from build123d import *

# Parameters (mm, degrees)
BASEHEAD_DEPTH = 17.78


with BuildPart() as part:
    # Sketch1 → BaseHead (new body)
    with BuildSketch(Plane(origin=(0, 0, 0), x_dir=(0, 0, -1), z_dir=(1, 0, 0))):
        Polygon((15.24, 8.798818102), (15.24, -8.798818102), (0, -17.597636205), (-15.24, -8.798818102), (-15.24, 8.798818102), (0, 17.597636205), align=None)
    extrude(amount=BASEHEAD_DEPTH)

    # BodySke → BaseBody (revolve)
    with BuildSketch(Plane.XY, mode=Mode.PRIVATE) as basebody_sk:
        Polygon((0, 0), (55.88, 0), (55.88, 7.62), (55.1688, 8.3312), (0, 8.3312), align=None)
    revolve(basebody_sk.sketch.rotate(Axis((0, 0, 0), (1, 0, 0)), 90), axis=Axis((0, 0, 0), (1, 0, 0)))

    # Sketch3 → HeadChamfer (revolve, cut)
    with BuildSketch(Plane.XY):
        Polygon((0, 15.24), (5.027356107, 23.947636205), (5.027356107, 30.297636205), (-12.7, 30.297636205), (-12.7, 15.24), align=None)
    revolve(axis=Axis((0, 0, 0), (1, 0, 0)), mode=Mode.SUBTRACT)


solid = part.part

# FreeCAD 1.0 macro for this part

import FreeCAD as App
import Part
import Sketcher

V = App.Vector
Q = App.Units.Quantity

doc = App.newDocument("Part")
params = doc.addObject("Spreadsheet::Sheet", "Params")
for row, (alias, value) in enumerate([
    ("pad1_length", "0.7 in"),
    ("sketch2_width", "2.2 in"),
    ("sketch2_height", "0.3 in"),
    ("sketch2_width2", "2.172 in"),
    ("revolution_angle", "360 deg"),
    ("sketch3_width", "0.5 in"),
    ("sketch3_height", "0.25 in"),
    ("groove_angle", "360 deg"),
], start=1):
    params.set(f"A{row}", alias)
    params.set(f"B{row}", "=" + value)
    params.setAlias(f"B{row}", alias)

body = doc.addObject("PartDesign::Body", "Body")

# Sketch on YZ plane
sketch1 = doc.addObject("Sketcher::SketchObject", "Sketch")
body.addObject(sketch1)
sketch1.AttachmentSupport = (doc.YZ_Plane, [""])
sketch1.MapMode = "FlatFace"
sketch1.addGeometry([
    Part.LineSegment(V(-8.798818, -15.24, 0), V(8.798818, -15.24, 0)),  # 0
    Part.LineSegment(V(8.798818, -15.24, 0), V(17.597636, 0, 0)),  # 1
    Part.LineSegment(V(17.597636, 0, 0), V(8.798818, 15.24, 0)),  # 2
    Part.LineSegment(V(8.798818, 15.24, 0), V(-8.798818, 15.24, 0)),  # 3
    Part.LineSegment(V(-8.798818, 15.24, 0), V(-17.597636, 0, 0)),  # 4
    Part.LineSegment(V(-17.597636, 0, 0), V(-8.798818, -15.24, 0)),  # 5
], False)
sketch1.addConstraint([
    Sketcher.Constraint("Coincident", 0, 2, 1, 1),
    Sketcher.Constraint("Coincident", 1, 2, 2, 1),
    Sketcher.Constraint("Coincident", 2, 2, 3, 1),
    Sketcher.Constraint("Coincident", 3, 2, 4, 1),
    Sketcher.Constraint("Coincident", 4, 2, 5, 1),
    Sketcher.Constraint("Coincident", 5, 2, 0, 1),
    Sketcher.Constraint("Horizontal", 0),
    Sketcher.Constraint("Horizontal", 3),
    Sketcher.Constraint("Symmetric", 0, 2, 3, 2, -1, 1),
    Sketcher.Constraint("Symmetric", 1, 2, 4, 2, -1, 1),
    Sketcher.Constraint("PointOnObject", 1, 2, -1),
    Sketcher.Constraint("Parallel", 2, 5),
    Sketcher.Constraint("Vertical", 0, 2, 2, 2),
    Sketcher.Constraint("Angle", 1, Q("60 deg")),
    Sketcher.Constraint("DistanceY", 0, 2, -1, 1, Q("0.6 in")),
    Sketcher.Constraint("DistanceX", 0, 1, 0, 2, 17.597636),
])
pad1 = doc.addObject("PartDesign::Pad", "Pad")
body.addObject(pad1)
pad1.Profile = sketch1
pad1.setExpression("Length", "Params.pad1_length")

# Sketch on XY plane
sketch2 = doc.addObject("Sketcher::SketchObject", "Sketch001")
body.addObject(sketch2)
sketch2.AttachmentSupport = (doc.XY_Plane, [""])
sketch2.MapMode = "FlatFace"
sketch2.addGeometry([
    Part.LineSegment(V(0, 0, 0), V(55.88, 0, 0)),  # 0
    Part.LineSegment(V(55.88, 0, 0), V(55.88, 7.62, 0)),  # 1
    Part.LineSegment(V(55.88, 7.62, 0), V(55.1688, 8.3312, 0)),  # 2
    Part.LineSegment(V(55.1688, 8.3312, 0), V(0, 8.3312, 0)),  # 3
    Part.LineSegment(V(0, 8.3312, 0), V(0, 0, 0)),  # 4
], False)
sketch2.addConstraint([
    Sketcher.Constraint("Coincident", 0, 2, 1, 1),
    Sketcher.Constraint("Coincident", 1, 2, 2, 1),
    Sketcher.Constraint("Coincident", 2, 2, 3, 1),
    Sketcher.Constraint("Coincident", 3, 2, 4, 1),
    Sketcher.Constraint("Coincident", 4, 2, 0, 1),
    Sketcher.Constraint("Horizontal", 0),
    Sketcher.Constraint("Vertical", 1),
    Sketcher.Constraint("Horizontal", 3),
    Sketcher.Constraint("Vertical", 4),
    Sketcher.Constraint("Coincident", 4, 2, -1, 1),
    Sketcher.Constraint("DistanceX", 0, 1, 0, 2, Q("2.2 in")),
    Sketcher.Constraint("DistanceY", 1, 1, 1, 2, Q("0.3 in")),
    Sketcher.Constraint("Angle", 2, Q("135 deg")),
    Sketcher.Constraint("DistanceX", 3, 2, 3, 1, Q("2.172 in")),
])
sketch2.setExpression("Constraints[10]", "Params.sketch2_width")
sketch2.setExpression("Constraints[11]", "Params.sketch2_height")
sketch2.setExpression("Constraints[13]", "Params.sketch2_width2")
revolution = doc.addObject("PartDesign::Revolution", "Revolution")
body.addObject(revolution)
revolution.Profile = sketch2
revolution.ReferenceAxis = (sketch2, ["H_Axis"])
revolution.setExpression("Angle", "Params.revolution_angle")

# Sketch on XY plane
sketch3 = doc.addObject("Sketcher::SketchObject", "Sketch002")
body.addObject(sketch3)
sketch3.AttachmentSupport = (doc.XY_Plane, [""])
sketch3.MapMode = "FlatFace"
sketch3.addGeometry([
    Part.LineSegment(V(0, 15.24, 0), V(5.027356, 23.947636, 0)),  # 0
    Part.LineSegment(V(5.027356, 23.947636, 0), V(5.027356, 30.297636, 0)),  # 1
    Part.LineSegment(V(5.027356, 30.297636, 0), V(-12.7, 30.297636, 0)),  # 2
    Part.LineSegment(V(-12.7, 30.297636, 0), V(-12.7, 15.24, 0)),  # 3
    Part.LineSegment(V(-12.7, 15.24, 0), V(0, 15.24, 0)),  # 4
], False)
sketch3.addConstraint([
    Sketcher.Constraint("Coincident", 0, 2, 1, 1),
    Sketcher.Constraint("Coincident", 1, 2, 2, 1),
    Sketcher.Constraint("Coincident", 2, 2, 3, 1),
    Sketcher.Constraint("Coincident", 3, 2, 4, 1),
    Sketcher.Constraint("Coincident", 4, 2, 0, 1),
    Sketcher.Constraint("Vertical", 1),
    Sketcher.Constraint("Horizontal", 2),
    Sketcher.Constraint("Vertical", 3),
    Sketcher.Constraint("Horizontal", 4),
    Sketcher.Constraint("PointOnObject", 4, 2, -2),
    Sketcher.Constraint("DistanceX", 4, 1, 4, 2, Q("0.5 in")),
    Sketcher.Constraint("Angle", 0, Q("60 deg")),
    Sketcher.Constraint("DistanceY", 1, 1, 1, 2, Q("0.25 in")),
    Sketcher.Constraint("DistanceY", -1, 1, 3, 2, Q("0.6 in")),
    Sketcher.Constraint("DistanceX", 2, 2, 2, 1, 17.727356),
])
sketch3.setExpression("Constraints[10]", "Params.sketch3_width")
sketch3.setExpression("Constraints[12]", "Params.sketch3_height")
groove = doc.addObject("PartDesign::Groove", "Groove")
body.addObject(groove)
groove.Profile = sketch3
groove.ReferenceAxis = (sketch3, ["H_Axis"])
groove.setExpression("Angle", "Params.groove_angle")

doc.recompute()
